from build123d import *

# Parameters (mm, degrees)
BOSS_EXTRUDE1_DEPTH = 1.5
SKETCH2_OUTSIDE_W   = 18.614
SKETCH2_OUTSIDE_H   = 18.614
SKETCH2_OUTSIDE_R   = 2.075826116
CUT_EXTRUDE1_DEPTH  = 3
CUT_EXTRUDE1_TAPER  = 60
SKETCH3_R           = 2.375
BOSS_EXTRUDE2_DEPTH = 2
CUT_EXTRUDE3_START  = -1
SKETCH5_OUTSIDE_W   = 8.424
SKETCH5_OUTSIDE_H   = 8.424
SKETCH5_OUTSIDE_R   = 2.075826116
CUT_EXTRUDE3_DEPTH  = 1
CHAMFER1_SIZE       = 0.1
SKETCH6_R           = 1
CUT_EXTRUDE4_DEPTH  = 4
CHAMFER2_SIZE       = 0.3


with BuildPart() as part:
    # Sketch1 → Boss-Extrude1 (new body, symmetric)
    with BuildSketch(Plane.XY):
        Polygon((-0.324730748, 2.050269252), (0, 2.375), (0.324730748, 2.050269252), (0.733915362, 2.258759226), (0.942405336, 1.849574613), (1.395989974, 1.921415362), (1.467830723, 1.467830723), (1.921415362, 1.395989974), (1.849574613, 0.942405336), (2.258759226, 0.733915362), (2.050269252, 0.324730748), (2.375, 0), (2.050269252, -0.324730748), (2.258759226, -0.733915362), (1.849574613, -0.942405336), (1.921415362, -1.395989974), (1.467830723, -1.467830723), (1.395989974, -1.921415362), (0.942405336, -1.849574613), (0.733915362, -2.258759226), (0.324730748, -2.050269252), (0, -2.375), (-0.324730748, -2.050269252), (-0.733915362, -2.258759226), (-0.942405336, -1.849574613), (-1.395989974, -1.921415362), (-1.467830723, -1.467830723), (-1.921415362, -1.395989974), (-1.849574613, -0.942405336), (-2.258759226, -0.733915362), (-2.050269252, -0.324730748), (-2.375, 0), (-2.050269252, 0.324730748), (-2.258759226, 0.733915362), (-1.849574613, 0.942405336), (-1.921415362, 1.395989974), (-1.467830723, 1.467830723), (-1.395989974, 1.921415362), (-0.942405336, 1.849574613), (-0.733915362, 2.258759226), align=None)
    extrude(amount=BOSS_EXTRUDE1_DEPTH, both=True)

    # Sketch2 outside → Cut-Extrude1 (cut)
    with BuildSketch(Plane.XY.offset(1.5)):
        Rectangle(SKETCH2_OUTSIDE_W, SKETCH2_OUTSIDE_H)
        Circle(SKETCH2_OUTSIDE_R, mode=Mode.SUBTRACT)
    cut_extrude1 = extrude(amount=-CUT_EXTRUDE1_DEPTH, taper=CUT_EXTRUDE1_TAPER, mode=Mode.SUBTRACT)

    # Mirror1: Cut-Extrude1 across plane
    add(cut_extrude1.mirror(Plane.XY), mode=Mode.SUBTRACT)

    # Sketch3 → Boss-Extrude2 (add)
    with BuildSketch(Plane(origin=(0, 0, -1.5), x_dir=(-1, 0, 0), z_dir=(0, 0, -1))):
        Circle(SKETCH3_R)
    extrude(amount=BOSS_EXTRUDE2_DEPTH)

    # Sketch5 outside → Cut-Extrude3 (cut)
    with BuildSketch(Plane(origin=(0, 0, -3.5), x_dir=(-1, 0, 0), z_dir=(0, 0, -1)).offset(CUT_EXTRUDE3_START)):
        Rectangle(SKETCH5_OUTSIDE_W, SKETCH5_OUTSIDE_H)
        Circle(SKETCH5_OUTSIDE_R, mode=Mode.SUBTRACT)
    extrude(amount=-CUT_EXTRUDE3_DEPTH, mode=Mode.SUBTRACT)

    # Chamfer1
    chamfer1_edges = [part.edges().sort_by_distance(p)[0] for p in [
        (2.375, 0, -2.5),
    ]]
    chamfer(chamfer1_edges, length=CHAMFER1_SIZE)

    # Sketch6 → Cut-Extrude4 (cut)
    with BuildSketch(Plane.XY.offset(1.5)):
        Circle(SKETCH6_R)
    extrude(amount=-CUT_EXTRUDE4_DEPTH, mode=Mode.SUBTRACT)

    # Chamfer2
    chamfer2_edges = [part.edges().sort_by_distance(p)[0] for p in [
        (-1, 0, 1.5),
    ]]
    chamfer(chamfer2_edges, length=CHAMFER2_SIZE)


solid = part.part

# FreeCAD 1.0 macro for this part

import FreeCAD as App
import Part
import Sketcher
from FreeCAD import Vector
Q = App.Units.Quantity


def edges_at(feature, points):
    """Names of the edges that pass closest to the given points."""
    edges = feature.Shape.Edges
    near = lambda p: min(range(len(edges)), key=lambda i: edges[i].distToShape(Part.Vertex(*p))[0])
    return sorted({f"Edge{near(p) + 1}" for p in points})

doc = App.newDocument("Part")
body = doc.addObject("PartDesign::Body", "Body")

# Sketch on XY plane
sketch1 = body.newObject("Sketcher::SketchObject", "Sketch")
sketch1.AttachmentSupport = (doc.getObject("XY_Plane"), [""])
sketch1.MapMode = "FlatFace"
sketch1.addGeometry(Part.LineSegment(Vector(0, 2.375, 0), Vector(-0.324731, 2.050269, 0)), False)
sketch1.addGeometry(Part.LineSegment(Vector(-0.324731, 2.050269, 0), Vector(-0.733915, 2.258759, 0)), False)
sketch1.addGeometry(Part.LineSegment(Vector(-0.733915, 2.258759, 0), Vector(-0.942405, 1.849575, 0)), False)
sketch1.addGeometry(Part.LineSegment(Vector(-0.942405, 1.849575, 0), Vector(-1.39599, 1.921415, 0)), False)
sketch1.addGeometry(Part.LineSegment(Vector(-1.39599, 1.921415, 0), Vector(-1.467831, 1.467831, 0)), False)
sketch1.addGeometry(Part.LineSegment(Vector(-1.467831, 1.467831, 0), Vector(-1.921415, 1.39599, 0)), False)
sketch1.addGeometry(Part.LineSegment(Vector(-1.921415, 1.39599, 0), Vector(-1.849575, 0.942405, 0)), False)
sketch1.addGeometry(Part.LineSegment(Vector(-1.849575, 0.942405, 0), Vector(-2.258759, 0.733915, 0)), False)
sketch1.addGeometry(Part.LineSegment(Vector(-2.258759, 0.733915, 0), Vector(-2.050269, 0.324731, 0)), False)
sketch1.addGeometry(Part.LineSegment(Vector(-2.050269, 0.324731, 0), Vector(-2.375, 0, 0)), False)
sketch1.addGeometry(Part.LineSegment(Vector(-2.375, 0, 0), Vector(-2.050269, -0.324731, 0)), False)
sketch1.addGeometry(Part.LineSegment(Vector(-2.050269, -0.324731, 0), Vector(-2.258759, -0.733915, 0)), False)
sketch1.addGeometry(Part.LineSegment(Vector(-2.258759, -0.733915, 0), Vector(-1.849575, -0.942405, 0)), False)
sketch1.addGeometry(Part.LineSegment(Vector(-1.849575, -0.942405, 0), Vector(-1.921415, -1.39599, 0)), False)
sketch1.addGeometry(Part.LineSegment(Vector(-1.921415, -1.39599, 0), Vector(-1.467831, -1.467831, 0)), False)
sketch1.addGeometry(Part.LineSegment(Vector(-1.467831, -1.467831, 0), Vector(-1.39599, -1.921415, 0)), False)
sketch1.addGeometry(Part.LineSegment(Vector(-1.39599, -1.921415, 0), Vector(-0.942405, -1.849575, 0)), False)
sketch1.addGeometry(Part.LineSegment(Vector(-0.942405, -1.849575, 0), Vector(-0.733915, -2.258759, 0)), False)
sketch1.addGeometry(Part.LineSegment(Vector(-0.733915, -2.258759, 0), Vector(-0.324731, -2.050269, 0)), False)
sketch1.addGeometry(Part.LineSegment(Vector(-0.324731, -2.050269, 0), Vector(0, -2.375, 0)), False)
sketch1.addGeometry(Part.LineSegment(Vector(0, -2.375, 0), Vector(0.324731, -2.050269, 0)), False)
sketch1.addGeometry(Part.LineSegment(Vector(0.324731, -2.050269, 0), Vector(0.733915, -2.258759, 0)), False)
sketch1.addGeometry(Part.LineSegment(Vector(0.733915, -2.258759, 0), Vector(0.942405, -1.849575, 0)), False)
sketch1.addGeometry(Part.LineSegment(Vector(0.942405, -1.849575, 0), Vector(1.39599, -1.921415, 0)), False)
sketch1.addGeometry(Part.LineSegment(Vector(1.39599, -1.921415, 0), Vector(1.467831, -1.467831, 0)), False)
sketch1.addGeometry(Part.LineSegment(Vector(1.467831, -1.467831, 0), Vector(1.921415, -1.39599, 0)), False)
sketch1.addGeometry(Part.LineSegment(Vector(1.921415, -1.39599, 0), Vector(1.849575, -0.942405, 0)), False)
sketch1.addGeometry(Part.LineSegment(Vector(1.849575, -0.942405, 0), Vector(2.258759, -0.733915, 0)), False)
sketch1.addGeometry(Part.LineSegment(Vector(2.258759, -0.733915, 0), Vector(2.050269, -0.324731, 0)), False)
sketch1.addGeometry(Part.LineSegment(Vector(2.050269, -0.324731, 0), Vector(2.375, 0, 0)), False)
sketch1.addGeometry(Part.LineSegment(Vector(2.375, 0, 0), Vector(2.050269, 0.324731, 0)), False)
sketch1.addGeometry(Part.LineSegment(Vector(2.050269, 0.324731, 0), Vector(2.258759, 0.733915, 0)), False)
sketch1.addGeometry(Part.LineSegment(Vector(2.258759, 0.733915, 0), Vector(1.849575, 0.942405, 0)), False)
sketch1.addGeometry(Part.LineSegment(Vector(1.849575, 0.942405, 0), Vector(1.921415, 1.39599, 0)), False)
sketch1.addGeometry(Part.LineSegment(Vector(1.921415, 1.39599, 0), Vector(1.467831, 1.467831, 0)), False)
sketch1.addGeometry(Part.LineSegment(Vector(1.467831, 1.467831, 0), Vector(1.39599, 1.921415, 0)), False)
sketch1.addGeometry(Part.LineSegment(Vector(1.39599, 1.921415, 0), Vector(0.942405, 1.849575, 0)), False)
sketch1.addGeometry(Part.LineSegment(Vector(0.942405, 1.849575, 0), Vector(0.733915, 2.258759, 0)), False)
sketch1.addGeometry(Part.LineSegment(Vector(0.733915, 2.258759, 0), Vector(0.324731, 2.050269, 0)), False)
sketch1.addGeometry(Part.LineSegment(Vector(0.324731, 2.050269, 0), Vector(0, 2.375, 0)), False)
sketch1.addConstraint(Sketcher.Constraint("Coincident", 0, 2, 1, 1))
sketch1.addConstraint(Sketcher.Constraint("Coincident", 1, 2, 2, 1))
sketch1.addConstraint(Sketcher.Constraint("Coincident", 2, 2, 3, 1))
sketch1.addConstraint(Sketcher.Constraint("Coincident", 3, 2, 4, 1))
sketch1.addConstraint(Sketcher.Constraint("Coincident", 4, 2, 5, 1))
sketch1.addConstraint(Sketcher.Constraint("Coincident", 5, 2, 6, 1))
sketch1.addConstraint(Sketcher.Constraint("Coincident", 6, 2, 7, 1))
sketch1.addConstraint(Sketcher.Constraint("Coincident", 7, 2, 8, 1))
sketch1.addConstraint(Sketcher.Constraint("Coincident", 8, 2, 9, 1))
sketch1.addConstraint(Sketcher.Constraint("Coincident", 9, 2, 10, 1))
sketch1.addConstraint(Sketcher.Constraint("Coincident", 10, 2, 11, 1))
sketch1.addConstraint(Sketcher.Constraint("Coincident", 11, 2, 12, 1))
sketch1.addConstraint(Sketcher.Constraint("Coincident", 12, 2, 13, 1))
sketch1.addConstraint(Sketcher.Constraint("Coincident", 13, 2, 14, 1))
sketch1.addConstraint(Sketcher.Constraint("Coincident", 14, 2, 15, 1))
sketch1.addConstraint(Sketcher.Constraint("Coincident", 15, 2, 16, 1))
sketch1.addConstraint(Sketcher.Constraint("Coincident", 16, 2, 17, 1))
sketch1.addConstraint(Sketcher.Constraint("Coincident", 17, 2, 18, 1))
sketch1.addConstraint(Sketcher.Constraint("Coincident", 18, 2, 19, 1))
sketch1.addConstraint(Sketcher.Constraint("Coincident", 19, 2, 20, 1))
sketch1.addConstraint(Sketcher.Constraint("Coincident", 20, 2, 21, 1))
sketch1.addConstraint(Sketcher.Constraint("Coincident", 21, 2, 22, 1))
sketch1.addConstraint(Sketcher.Constraint("Coincident", 22, 2, 23, 1))
sketch1.addConstraint(Sketcher.Constraint("Coincident", 23, 2, 24, 1))
sketch1.addConstraint(Sketcher.Constraint("Coincident", 24, 2, 25, 1))
sketch1.addConstraint(Sketcher.Constraint("Coincident", 25, 2, 26, 1))
sketch1.addConstraint(Sketcher.Constraint("Coincident", 26, 2, 27, 1))
sketch1.addConstraint(Sketcher.Constraint("Coincident", 27, 2, 28, 1))
sketch1.addConstraint(Sketcher.Constraint("Coincident", 28, 2, 29, 1))
sketch1.addConstraint(Sketcher.Constraint("Coincident", 29, 2, 30, 1))
sketch1.addConstraint(Sketcher.Constraint("Coincident", 30, 2, 31, 1))
sketch1.addConstraint(Sketcher.Constraint("Coincident", 31, 2, 32, 1))
sketch1.addConstraint(Sketcher.Constraint("Coincident", 32, 2, 33, 1))
sketch1.addConstraint(Sketcher.Constraint("Coincident", 33, 2, 34, 1))
sketch1.addConstraint(Sketcher.Constraint("Coincident", 34, 2, 35, 1))
sketch1.addConstraint(Sketcher.Constraint("Coincident", 35, 2, 36, 1))
sketch1.addConstraint(Sketcher.Constraint("Coincident", 36, 2, 37, 1))
sketch1.addConstraint(Sketcher.Constraint("Coincident", 37, 2, 38, 1))
sketch1.addConstraint(Sketcher.Constraint("Coincident", 38, 2, 39, 1))
sketch1.addConstraint(Sketcher.Constraint("Coincident", 39, 2, 0, 1))
sketch1.addConstraint(Sketcher.Constraint("Symmetric", 0, 2, 20, 2, -1, 1))
sketch1.addConstraint(Sketcher.Constraint("Symmetric", 1, 2, 21, 2, -1, 1))
sketch1.addConstraint(Sketcher.Constraint("Symmetric", 2, 2, 22, 2, -1, 1))
sketch1.addConstraint(Sketcher.Constraint("Symmetric", 3, 2, 23, 2, -1, 1))
sketch1.addConstraint(Sketcher.Constraint("Symmetric", 4, 2, 24, 2, -1, 1))
sketch1.addConstraint(Sketcher.Constraint("Symmetric", 5, 2, 25, 2, -1, 1))
sketch1.addConstraint(Sketcher.Constraint("Symmetric", 6, 2, 26, 2, -1, 1))
sketch1.addConstraint(Sketcher.Constraint("Symmetric", 7, 2, 27, 2, -1, 1))
sketch1.addConstraint(Sketcher.Constraint("Symmetric", 8, 2, 28, 2, -1, 1))
sketch1.addConstraint(Sketcher.Constraint("Symmetric", 9, 2, 29, 2, -1, 1))
sketch1.addConstraint(Sketcher.Constraint("Symmetric", 10, 2, 30, 2, -1, 1))
sketch1.addConstraint(Sketcher.Constraint("Symmetric", 11, 2, 31, 2, -1, 1))
sketch1.addConstraint(Sketcher.Constraint("Symmetric", 12, 2, 32, 2, -1, 1))
sketch1.addConstraint(Sketcher.Constraint("Symmetric", 13, 2, 33, 2, -1, 1))
sketch1.addConstraint(Sketcher.Constraint("Symmetric", 14, 2, 34, 2, -1, 1))
sketch1.addConstraint(Sketcher.Constraint("Symmetric", 15, 2, 35, 2, -1, 1))
sketch1.addConstraint(Sketcher.Constraint("Symmetric", 16, 2, 36, 2, -1, 1))
sketch1.addConstraint(Sketcher.Constraint("Symmetric", 17, 2, 37, 2, -1, 1))
sketch1.addConstraint(Sketcher.Constraint("Symmetric", 18, 2, 38, 2, -1, 1))
sketch1.addConstraint(Sketcher.Constraint("Symmetric", 19, 2, 39, 2, -1, 1))
sketch1.addConstraint(Sketcher.Constraint("Symmetric", 18, 2, 20, 2, -2))
sketch1.addConstraint(Sketcher.Constraint("Symmetric", 17, 2, 21, 2, -2))
sketch1.addConstraint(Sketcher.Constraint("Symmetric", 16, 2, 22, 2, -2))
sketch1.addConstraint(Sketcher.Constraint("Symmetric", 15, 2, 23, 2, -2))
sketch1.addConstraint(Sketcher.Constraint("Symmetric", 14, 2, 24, 2, -2))
sketch1.addConstraint(Sketcher.Constraint("Symmetric", 13, 2, 25, 2, -2))
sketch1.addConstraint(Sketcher.Constraint("Symmetric", 12, 2, 26, 2, -2))
sketch1.addConstraint(Sketcher.Constraint("Symmetric", 11, 2, 27, 2, -2))
sketch1.addConstraint(Sketcher.Constraint("Symmetric", 10, 2, 28, 2, -2))
sketch1.addConstraint(Sketcher.Constraint("PointOnObject", 9, 2, -1))
sketch1.addConstraint(Sketcher.Constraint("PointOnObject", 19, 2, -2))
sketch1.addConstraint(Sketcher.Constraint("Perpendicular", 1, 2))
sketch1.addConstraint(Sketcher.Constraint("Perpendicular", 3, 4))
sketch1.addConstraint(Sketcher.Constraint("Perpendicular", 5, 6))
sketch1.addConstraint(Sketcher.Constraint("Perpendicular", 7, 8))
sketch1.addConstraint(Sketcher.Constraint("Parallel", 0, 9))
sketch1.addConstraint(Sketcher.Constraint("Perpendicular", 9, 10))
sketch1.addConstraint(Sketcher.Constraint("Parallel", 2, 11))
sketch1.addConstraint(Sketcher.Constraint("Parallel", 4, 13))
sketch1.addConstraint(Sketcher.Constraint("Equal", 0, 1))
sketch1.addConstraint(Sketcher.Constraint("Equal", 1, 2))
sketch1.addConstraint(Sketcher.Constraint("Equal", 2, 3))
sketch1.addConstraint(Sketcher.Constraint("Equal", 3, 4))
sketch1.addConstraint(Sketcher.Constraint("Equal", 4, 5))
sketch1.addConstraint(Sketcher.Constraint("Equal", 5, 6))
sketch1.addConstraint(Sketcher.Constraint("Equal", 6, 7))
sketch1.addConstraint(Sketcher.Constraint("Equal", 7, 8))
sketch1.addConstraint(Sketcher.Constraint("Equal", 8, 9))
sketch1.addConstraint(Sketcher.Constraint("Angle", 1, Q("153 deg")))
sketch1.addConstraint(Sketcher.Constraint("Angle", 3, Q("171 deg")))
sketch1.addConstraint(Sketcher.Constraint("DistanceX", 9, 2, -1, 1, 2.375))
pad1 = body.newObject("PartDesign::Pad", "Pad")
pad1.Profile = sketch1
pad1.Length = 3
pad1.Midplane = True

# Sketch on XY plane
sketch2 = body.newObject("Sketcher::SketchObject", "Sketch001")
sketch2.AttachmentSupport = (doc.getObject("XY_Plane"), [""])
sketch2.MapMode = "FlatFace"
sketch2.AttachmentOffset = App.Placement(Vector(0, 0, 1.5), App.Rotation())
sketch2.addGeometry(Part.LineSegment(Vector(-9.307, 9.307, 0), Vector(-9.307, -9.307, 0)), False)
sketch2.addGeometry(Part.LineSegment(Vector(-9.307, -9.307, 0), Vector(9.307, -9.307, 0)), False)
sketch2.addGeometry(Part.LineSegment(Vector(9.307, -9.307, 0), Vector(9.307, 9.307, 0)), False)
sketch2.addGeometry(Part.LineSegment(Vector(9.307, 9.307, 0), Vector(-9.307, 9.307, 0)), False)
sketch2.addGeometry(Part.Circle(Vector(0, 0, 0), Vector(0, 0, 1), 2.075826), False)
sketch2.addConstraint(Sketcher.Constraint("Coincident", 0, 2, 1, 1))
sketch2.addConstraint(Sketcher.Constraint("Coincident", 1, 2, 2, 1))
sketch2.addConstraint(Sketcher.Constraint("Coincident", 2, 2, 3, 1))
sketch2.addConstraint(Sketcher.Constraint("Coincident", 3, 2, 0, 1))
sketch2.addConstraint(Sketcher.Constraint("Vertical", 0))
sketch2.addConstraint(Sketcher.Constraint("Horizontal", 1))
sketch2.addConstraint(Sketcher.Constraint("Vertical", 2))
sketch2.addConstraint(Sketcher.Constraint("Horizontal", 3))
sketch2.addConstraint(Sketcher.Constraint("Coincident", 4, 3, -1, 1))
sketch2.addConstraint(Sketcher.Constraint("Symmetric", 0, 2, 2, 2, -1, 1))
sketch2.addConstraint(Sketcher.Constraint("Equal", 3, 0))
sketch2.addConstraint(Sketcher.Constraint("DistanceX", 1, 1, 1, 2, 18.614))
sketch2.addConstraint(Sketcher.Constraint("Diameter", 4, 4.151652))
pocket1 = body.newObject("PartDesign::Pocket", "Pocket")
pocket1.Profile = sketch2
pocket1.Length = 3
pocket1.TaperAngle = 60
doc.recompute()

mirrored = body.newObject("PartDesign::Mirrored", "Mirrored")
mirrored.Originals = [pocket1]
mirrored.MirrorPlane = (doc.getObject("XY_Plane"), [""])
body.Tip = mirrored

# Sketch on XY plane
sketch3 = body.newObject("Sketcher::SketchObject", "Sketch002")
sketch3.AttachmentSupport = (doc.getObject("XY_Plane"), [""])
sketch3.MapMode = "FlatFace"
sketch3.AttachmentOffset = App.Placement(Vector(0, 0, -1.5), App.Rotation())
sketch3.addGeometry(Part.Circle(Vector(0, 0, 0), Vector(0, 0, 1), 2.375), False)
sketch3.addConstraint(Sketcher.Constraint("Coincident", 0, 3, -1, 1))
sketch3.addConstraint(Sketcher.Constraint("Diameter", 0, 4.75))
pad2 = body.newObject("PartDesign::Pad", "Pad001")
pad2.Profile = sketch3
pad2.Length = 2
pad2.Reversed = True

# Sketch on XY plane
sketch4 = body.newObject("Sketcher::SketchObject", "Sketch003")
sketch4.AttachmentSupport = (doc.getObject("XY_Plane"), [""])
sketch4.MapMode = "FlatFace"
sketch4.AttachmentOffset = App.Placement(Vector(0, 0, -2.5), App.Rotation())
sketch4.addGeometry(Part.LineSegment(Vector(4.212, 4.212, 0), Vector(4.212, -4.212, 0)), False)
sketch4.addGeometry(Part.LineSegment(Vector(4.212, -4.212, 0), Vector(-4.212, -4.212, 0)), False)
sketch4.addGeometry(Part.LineSegment(Vector(-4.212, -4.212, 0), Vector(-4.212, 4.212, 0)), False)
sketch4.addGeometry(Part.LineSegment(Vector(-4.212, 4.212, 0), Vector(4.212, 4.212, 0)), False)
sketch4.addGeometry(Part.Circle(Vector(0, 0, 0), Vector(0, 0, 1), 2.075826), False)
sketch4.addConstraint(Sketcher.Constraint("Coincident", 0, 2, 1, 1))
sketch4.addConstraint(Sketcher.Constraint("Coincident", 1, 2, 2, 1))
sketch4.addConstraint(Sketcher.Constraint("Coincident", 2, 2, 3, 1))
sketch4.addConstraint(Sketcher.Constraint("Coincident", 3, 2, 0, 1))
sketch4.addConstraint(Sketcher.Constraint("Vertical", 0))
sketch4.addConstraint(Sketcher.Constraint("Horizontal", 1))
sketch4.addConstraint(Sketcher.Constraint("Vertical", 2))
sketch4.addConstraint(Sketcher.Constraint("Horizontal", 3))
sketch4.addConstraint(Sketcher.Constraint("Coincident", 4, 3, -1, 1))
sketch4.addConstraint(Sketcher.Constraint("Symmetric", 0, 2, 2, 2, -1, 1))
sketch4.addConstraint(Sketcher.Constraint("Equal", 3, 0))
sketch4.addConstraint(Sketcher.Constraint("DistanceX", 1, 2, 1, 1, 8.424))
sketch4.addConstraint(Sketcher.Constraint("Diameter", 4, 4.151652))
pocket2 = body.newObject("PartDesign::Pocket", "Pocket001")
pocket2.Profile = sketch4
pocket2.Length = 1
pocket2.Reversed = True
doc.recompute()

chamfer = body.newObject("PartDesign::Chamfer", "Chamfer")
chamfer.Base = (pocket2, edges_at(pocket2, [(2.375, 0, -2.5)]))
chamfer.Size = 0.1

# Sketch on XY plane
sketch5 = body.newObject("Sketcher::SketchObject", "Sketch004")
sketch5.AttachmentSupport = (doc.getObject("XY_Plane"), [""])
sketch5.MapMode = "FlatFace"
sketch5.AttachmentOffset = App.Placement(Vector(0, 0, 1.5), App.Rotation())
sketch5.addGeometry(Part.Circle(Vector(0, 0, 0), Vector(0, 0, 1), 1), False)
sketch5.addConstraint(Sketcher.Constraint("Coincident", 0, 3, -1, 1))
sketch5.addConstraint(Sketcher.Constraint("Diameter", 0, 2.0))
pocket3 = body.newObject("PartDesign::Pocket", "Pocket002")
pocket3.Profile = sketch5
pocket3.Length = 4
doc.recompute()

chamfer2 = body.newObject("PartDesign::Chamfer", "Chamfer001")
chamfer2.Base = (pocket3, edges_at(pocket3, [(-1, 0, 1.5)]))
chamfer2.Size = 0.3

doc.recompute()
